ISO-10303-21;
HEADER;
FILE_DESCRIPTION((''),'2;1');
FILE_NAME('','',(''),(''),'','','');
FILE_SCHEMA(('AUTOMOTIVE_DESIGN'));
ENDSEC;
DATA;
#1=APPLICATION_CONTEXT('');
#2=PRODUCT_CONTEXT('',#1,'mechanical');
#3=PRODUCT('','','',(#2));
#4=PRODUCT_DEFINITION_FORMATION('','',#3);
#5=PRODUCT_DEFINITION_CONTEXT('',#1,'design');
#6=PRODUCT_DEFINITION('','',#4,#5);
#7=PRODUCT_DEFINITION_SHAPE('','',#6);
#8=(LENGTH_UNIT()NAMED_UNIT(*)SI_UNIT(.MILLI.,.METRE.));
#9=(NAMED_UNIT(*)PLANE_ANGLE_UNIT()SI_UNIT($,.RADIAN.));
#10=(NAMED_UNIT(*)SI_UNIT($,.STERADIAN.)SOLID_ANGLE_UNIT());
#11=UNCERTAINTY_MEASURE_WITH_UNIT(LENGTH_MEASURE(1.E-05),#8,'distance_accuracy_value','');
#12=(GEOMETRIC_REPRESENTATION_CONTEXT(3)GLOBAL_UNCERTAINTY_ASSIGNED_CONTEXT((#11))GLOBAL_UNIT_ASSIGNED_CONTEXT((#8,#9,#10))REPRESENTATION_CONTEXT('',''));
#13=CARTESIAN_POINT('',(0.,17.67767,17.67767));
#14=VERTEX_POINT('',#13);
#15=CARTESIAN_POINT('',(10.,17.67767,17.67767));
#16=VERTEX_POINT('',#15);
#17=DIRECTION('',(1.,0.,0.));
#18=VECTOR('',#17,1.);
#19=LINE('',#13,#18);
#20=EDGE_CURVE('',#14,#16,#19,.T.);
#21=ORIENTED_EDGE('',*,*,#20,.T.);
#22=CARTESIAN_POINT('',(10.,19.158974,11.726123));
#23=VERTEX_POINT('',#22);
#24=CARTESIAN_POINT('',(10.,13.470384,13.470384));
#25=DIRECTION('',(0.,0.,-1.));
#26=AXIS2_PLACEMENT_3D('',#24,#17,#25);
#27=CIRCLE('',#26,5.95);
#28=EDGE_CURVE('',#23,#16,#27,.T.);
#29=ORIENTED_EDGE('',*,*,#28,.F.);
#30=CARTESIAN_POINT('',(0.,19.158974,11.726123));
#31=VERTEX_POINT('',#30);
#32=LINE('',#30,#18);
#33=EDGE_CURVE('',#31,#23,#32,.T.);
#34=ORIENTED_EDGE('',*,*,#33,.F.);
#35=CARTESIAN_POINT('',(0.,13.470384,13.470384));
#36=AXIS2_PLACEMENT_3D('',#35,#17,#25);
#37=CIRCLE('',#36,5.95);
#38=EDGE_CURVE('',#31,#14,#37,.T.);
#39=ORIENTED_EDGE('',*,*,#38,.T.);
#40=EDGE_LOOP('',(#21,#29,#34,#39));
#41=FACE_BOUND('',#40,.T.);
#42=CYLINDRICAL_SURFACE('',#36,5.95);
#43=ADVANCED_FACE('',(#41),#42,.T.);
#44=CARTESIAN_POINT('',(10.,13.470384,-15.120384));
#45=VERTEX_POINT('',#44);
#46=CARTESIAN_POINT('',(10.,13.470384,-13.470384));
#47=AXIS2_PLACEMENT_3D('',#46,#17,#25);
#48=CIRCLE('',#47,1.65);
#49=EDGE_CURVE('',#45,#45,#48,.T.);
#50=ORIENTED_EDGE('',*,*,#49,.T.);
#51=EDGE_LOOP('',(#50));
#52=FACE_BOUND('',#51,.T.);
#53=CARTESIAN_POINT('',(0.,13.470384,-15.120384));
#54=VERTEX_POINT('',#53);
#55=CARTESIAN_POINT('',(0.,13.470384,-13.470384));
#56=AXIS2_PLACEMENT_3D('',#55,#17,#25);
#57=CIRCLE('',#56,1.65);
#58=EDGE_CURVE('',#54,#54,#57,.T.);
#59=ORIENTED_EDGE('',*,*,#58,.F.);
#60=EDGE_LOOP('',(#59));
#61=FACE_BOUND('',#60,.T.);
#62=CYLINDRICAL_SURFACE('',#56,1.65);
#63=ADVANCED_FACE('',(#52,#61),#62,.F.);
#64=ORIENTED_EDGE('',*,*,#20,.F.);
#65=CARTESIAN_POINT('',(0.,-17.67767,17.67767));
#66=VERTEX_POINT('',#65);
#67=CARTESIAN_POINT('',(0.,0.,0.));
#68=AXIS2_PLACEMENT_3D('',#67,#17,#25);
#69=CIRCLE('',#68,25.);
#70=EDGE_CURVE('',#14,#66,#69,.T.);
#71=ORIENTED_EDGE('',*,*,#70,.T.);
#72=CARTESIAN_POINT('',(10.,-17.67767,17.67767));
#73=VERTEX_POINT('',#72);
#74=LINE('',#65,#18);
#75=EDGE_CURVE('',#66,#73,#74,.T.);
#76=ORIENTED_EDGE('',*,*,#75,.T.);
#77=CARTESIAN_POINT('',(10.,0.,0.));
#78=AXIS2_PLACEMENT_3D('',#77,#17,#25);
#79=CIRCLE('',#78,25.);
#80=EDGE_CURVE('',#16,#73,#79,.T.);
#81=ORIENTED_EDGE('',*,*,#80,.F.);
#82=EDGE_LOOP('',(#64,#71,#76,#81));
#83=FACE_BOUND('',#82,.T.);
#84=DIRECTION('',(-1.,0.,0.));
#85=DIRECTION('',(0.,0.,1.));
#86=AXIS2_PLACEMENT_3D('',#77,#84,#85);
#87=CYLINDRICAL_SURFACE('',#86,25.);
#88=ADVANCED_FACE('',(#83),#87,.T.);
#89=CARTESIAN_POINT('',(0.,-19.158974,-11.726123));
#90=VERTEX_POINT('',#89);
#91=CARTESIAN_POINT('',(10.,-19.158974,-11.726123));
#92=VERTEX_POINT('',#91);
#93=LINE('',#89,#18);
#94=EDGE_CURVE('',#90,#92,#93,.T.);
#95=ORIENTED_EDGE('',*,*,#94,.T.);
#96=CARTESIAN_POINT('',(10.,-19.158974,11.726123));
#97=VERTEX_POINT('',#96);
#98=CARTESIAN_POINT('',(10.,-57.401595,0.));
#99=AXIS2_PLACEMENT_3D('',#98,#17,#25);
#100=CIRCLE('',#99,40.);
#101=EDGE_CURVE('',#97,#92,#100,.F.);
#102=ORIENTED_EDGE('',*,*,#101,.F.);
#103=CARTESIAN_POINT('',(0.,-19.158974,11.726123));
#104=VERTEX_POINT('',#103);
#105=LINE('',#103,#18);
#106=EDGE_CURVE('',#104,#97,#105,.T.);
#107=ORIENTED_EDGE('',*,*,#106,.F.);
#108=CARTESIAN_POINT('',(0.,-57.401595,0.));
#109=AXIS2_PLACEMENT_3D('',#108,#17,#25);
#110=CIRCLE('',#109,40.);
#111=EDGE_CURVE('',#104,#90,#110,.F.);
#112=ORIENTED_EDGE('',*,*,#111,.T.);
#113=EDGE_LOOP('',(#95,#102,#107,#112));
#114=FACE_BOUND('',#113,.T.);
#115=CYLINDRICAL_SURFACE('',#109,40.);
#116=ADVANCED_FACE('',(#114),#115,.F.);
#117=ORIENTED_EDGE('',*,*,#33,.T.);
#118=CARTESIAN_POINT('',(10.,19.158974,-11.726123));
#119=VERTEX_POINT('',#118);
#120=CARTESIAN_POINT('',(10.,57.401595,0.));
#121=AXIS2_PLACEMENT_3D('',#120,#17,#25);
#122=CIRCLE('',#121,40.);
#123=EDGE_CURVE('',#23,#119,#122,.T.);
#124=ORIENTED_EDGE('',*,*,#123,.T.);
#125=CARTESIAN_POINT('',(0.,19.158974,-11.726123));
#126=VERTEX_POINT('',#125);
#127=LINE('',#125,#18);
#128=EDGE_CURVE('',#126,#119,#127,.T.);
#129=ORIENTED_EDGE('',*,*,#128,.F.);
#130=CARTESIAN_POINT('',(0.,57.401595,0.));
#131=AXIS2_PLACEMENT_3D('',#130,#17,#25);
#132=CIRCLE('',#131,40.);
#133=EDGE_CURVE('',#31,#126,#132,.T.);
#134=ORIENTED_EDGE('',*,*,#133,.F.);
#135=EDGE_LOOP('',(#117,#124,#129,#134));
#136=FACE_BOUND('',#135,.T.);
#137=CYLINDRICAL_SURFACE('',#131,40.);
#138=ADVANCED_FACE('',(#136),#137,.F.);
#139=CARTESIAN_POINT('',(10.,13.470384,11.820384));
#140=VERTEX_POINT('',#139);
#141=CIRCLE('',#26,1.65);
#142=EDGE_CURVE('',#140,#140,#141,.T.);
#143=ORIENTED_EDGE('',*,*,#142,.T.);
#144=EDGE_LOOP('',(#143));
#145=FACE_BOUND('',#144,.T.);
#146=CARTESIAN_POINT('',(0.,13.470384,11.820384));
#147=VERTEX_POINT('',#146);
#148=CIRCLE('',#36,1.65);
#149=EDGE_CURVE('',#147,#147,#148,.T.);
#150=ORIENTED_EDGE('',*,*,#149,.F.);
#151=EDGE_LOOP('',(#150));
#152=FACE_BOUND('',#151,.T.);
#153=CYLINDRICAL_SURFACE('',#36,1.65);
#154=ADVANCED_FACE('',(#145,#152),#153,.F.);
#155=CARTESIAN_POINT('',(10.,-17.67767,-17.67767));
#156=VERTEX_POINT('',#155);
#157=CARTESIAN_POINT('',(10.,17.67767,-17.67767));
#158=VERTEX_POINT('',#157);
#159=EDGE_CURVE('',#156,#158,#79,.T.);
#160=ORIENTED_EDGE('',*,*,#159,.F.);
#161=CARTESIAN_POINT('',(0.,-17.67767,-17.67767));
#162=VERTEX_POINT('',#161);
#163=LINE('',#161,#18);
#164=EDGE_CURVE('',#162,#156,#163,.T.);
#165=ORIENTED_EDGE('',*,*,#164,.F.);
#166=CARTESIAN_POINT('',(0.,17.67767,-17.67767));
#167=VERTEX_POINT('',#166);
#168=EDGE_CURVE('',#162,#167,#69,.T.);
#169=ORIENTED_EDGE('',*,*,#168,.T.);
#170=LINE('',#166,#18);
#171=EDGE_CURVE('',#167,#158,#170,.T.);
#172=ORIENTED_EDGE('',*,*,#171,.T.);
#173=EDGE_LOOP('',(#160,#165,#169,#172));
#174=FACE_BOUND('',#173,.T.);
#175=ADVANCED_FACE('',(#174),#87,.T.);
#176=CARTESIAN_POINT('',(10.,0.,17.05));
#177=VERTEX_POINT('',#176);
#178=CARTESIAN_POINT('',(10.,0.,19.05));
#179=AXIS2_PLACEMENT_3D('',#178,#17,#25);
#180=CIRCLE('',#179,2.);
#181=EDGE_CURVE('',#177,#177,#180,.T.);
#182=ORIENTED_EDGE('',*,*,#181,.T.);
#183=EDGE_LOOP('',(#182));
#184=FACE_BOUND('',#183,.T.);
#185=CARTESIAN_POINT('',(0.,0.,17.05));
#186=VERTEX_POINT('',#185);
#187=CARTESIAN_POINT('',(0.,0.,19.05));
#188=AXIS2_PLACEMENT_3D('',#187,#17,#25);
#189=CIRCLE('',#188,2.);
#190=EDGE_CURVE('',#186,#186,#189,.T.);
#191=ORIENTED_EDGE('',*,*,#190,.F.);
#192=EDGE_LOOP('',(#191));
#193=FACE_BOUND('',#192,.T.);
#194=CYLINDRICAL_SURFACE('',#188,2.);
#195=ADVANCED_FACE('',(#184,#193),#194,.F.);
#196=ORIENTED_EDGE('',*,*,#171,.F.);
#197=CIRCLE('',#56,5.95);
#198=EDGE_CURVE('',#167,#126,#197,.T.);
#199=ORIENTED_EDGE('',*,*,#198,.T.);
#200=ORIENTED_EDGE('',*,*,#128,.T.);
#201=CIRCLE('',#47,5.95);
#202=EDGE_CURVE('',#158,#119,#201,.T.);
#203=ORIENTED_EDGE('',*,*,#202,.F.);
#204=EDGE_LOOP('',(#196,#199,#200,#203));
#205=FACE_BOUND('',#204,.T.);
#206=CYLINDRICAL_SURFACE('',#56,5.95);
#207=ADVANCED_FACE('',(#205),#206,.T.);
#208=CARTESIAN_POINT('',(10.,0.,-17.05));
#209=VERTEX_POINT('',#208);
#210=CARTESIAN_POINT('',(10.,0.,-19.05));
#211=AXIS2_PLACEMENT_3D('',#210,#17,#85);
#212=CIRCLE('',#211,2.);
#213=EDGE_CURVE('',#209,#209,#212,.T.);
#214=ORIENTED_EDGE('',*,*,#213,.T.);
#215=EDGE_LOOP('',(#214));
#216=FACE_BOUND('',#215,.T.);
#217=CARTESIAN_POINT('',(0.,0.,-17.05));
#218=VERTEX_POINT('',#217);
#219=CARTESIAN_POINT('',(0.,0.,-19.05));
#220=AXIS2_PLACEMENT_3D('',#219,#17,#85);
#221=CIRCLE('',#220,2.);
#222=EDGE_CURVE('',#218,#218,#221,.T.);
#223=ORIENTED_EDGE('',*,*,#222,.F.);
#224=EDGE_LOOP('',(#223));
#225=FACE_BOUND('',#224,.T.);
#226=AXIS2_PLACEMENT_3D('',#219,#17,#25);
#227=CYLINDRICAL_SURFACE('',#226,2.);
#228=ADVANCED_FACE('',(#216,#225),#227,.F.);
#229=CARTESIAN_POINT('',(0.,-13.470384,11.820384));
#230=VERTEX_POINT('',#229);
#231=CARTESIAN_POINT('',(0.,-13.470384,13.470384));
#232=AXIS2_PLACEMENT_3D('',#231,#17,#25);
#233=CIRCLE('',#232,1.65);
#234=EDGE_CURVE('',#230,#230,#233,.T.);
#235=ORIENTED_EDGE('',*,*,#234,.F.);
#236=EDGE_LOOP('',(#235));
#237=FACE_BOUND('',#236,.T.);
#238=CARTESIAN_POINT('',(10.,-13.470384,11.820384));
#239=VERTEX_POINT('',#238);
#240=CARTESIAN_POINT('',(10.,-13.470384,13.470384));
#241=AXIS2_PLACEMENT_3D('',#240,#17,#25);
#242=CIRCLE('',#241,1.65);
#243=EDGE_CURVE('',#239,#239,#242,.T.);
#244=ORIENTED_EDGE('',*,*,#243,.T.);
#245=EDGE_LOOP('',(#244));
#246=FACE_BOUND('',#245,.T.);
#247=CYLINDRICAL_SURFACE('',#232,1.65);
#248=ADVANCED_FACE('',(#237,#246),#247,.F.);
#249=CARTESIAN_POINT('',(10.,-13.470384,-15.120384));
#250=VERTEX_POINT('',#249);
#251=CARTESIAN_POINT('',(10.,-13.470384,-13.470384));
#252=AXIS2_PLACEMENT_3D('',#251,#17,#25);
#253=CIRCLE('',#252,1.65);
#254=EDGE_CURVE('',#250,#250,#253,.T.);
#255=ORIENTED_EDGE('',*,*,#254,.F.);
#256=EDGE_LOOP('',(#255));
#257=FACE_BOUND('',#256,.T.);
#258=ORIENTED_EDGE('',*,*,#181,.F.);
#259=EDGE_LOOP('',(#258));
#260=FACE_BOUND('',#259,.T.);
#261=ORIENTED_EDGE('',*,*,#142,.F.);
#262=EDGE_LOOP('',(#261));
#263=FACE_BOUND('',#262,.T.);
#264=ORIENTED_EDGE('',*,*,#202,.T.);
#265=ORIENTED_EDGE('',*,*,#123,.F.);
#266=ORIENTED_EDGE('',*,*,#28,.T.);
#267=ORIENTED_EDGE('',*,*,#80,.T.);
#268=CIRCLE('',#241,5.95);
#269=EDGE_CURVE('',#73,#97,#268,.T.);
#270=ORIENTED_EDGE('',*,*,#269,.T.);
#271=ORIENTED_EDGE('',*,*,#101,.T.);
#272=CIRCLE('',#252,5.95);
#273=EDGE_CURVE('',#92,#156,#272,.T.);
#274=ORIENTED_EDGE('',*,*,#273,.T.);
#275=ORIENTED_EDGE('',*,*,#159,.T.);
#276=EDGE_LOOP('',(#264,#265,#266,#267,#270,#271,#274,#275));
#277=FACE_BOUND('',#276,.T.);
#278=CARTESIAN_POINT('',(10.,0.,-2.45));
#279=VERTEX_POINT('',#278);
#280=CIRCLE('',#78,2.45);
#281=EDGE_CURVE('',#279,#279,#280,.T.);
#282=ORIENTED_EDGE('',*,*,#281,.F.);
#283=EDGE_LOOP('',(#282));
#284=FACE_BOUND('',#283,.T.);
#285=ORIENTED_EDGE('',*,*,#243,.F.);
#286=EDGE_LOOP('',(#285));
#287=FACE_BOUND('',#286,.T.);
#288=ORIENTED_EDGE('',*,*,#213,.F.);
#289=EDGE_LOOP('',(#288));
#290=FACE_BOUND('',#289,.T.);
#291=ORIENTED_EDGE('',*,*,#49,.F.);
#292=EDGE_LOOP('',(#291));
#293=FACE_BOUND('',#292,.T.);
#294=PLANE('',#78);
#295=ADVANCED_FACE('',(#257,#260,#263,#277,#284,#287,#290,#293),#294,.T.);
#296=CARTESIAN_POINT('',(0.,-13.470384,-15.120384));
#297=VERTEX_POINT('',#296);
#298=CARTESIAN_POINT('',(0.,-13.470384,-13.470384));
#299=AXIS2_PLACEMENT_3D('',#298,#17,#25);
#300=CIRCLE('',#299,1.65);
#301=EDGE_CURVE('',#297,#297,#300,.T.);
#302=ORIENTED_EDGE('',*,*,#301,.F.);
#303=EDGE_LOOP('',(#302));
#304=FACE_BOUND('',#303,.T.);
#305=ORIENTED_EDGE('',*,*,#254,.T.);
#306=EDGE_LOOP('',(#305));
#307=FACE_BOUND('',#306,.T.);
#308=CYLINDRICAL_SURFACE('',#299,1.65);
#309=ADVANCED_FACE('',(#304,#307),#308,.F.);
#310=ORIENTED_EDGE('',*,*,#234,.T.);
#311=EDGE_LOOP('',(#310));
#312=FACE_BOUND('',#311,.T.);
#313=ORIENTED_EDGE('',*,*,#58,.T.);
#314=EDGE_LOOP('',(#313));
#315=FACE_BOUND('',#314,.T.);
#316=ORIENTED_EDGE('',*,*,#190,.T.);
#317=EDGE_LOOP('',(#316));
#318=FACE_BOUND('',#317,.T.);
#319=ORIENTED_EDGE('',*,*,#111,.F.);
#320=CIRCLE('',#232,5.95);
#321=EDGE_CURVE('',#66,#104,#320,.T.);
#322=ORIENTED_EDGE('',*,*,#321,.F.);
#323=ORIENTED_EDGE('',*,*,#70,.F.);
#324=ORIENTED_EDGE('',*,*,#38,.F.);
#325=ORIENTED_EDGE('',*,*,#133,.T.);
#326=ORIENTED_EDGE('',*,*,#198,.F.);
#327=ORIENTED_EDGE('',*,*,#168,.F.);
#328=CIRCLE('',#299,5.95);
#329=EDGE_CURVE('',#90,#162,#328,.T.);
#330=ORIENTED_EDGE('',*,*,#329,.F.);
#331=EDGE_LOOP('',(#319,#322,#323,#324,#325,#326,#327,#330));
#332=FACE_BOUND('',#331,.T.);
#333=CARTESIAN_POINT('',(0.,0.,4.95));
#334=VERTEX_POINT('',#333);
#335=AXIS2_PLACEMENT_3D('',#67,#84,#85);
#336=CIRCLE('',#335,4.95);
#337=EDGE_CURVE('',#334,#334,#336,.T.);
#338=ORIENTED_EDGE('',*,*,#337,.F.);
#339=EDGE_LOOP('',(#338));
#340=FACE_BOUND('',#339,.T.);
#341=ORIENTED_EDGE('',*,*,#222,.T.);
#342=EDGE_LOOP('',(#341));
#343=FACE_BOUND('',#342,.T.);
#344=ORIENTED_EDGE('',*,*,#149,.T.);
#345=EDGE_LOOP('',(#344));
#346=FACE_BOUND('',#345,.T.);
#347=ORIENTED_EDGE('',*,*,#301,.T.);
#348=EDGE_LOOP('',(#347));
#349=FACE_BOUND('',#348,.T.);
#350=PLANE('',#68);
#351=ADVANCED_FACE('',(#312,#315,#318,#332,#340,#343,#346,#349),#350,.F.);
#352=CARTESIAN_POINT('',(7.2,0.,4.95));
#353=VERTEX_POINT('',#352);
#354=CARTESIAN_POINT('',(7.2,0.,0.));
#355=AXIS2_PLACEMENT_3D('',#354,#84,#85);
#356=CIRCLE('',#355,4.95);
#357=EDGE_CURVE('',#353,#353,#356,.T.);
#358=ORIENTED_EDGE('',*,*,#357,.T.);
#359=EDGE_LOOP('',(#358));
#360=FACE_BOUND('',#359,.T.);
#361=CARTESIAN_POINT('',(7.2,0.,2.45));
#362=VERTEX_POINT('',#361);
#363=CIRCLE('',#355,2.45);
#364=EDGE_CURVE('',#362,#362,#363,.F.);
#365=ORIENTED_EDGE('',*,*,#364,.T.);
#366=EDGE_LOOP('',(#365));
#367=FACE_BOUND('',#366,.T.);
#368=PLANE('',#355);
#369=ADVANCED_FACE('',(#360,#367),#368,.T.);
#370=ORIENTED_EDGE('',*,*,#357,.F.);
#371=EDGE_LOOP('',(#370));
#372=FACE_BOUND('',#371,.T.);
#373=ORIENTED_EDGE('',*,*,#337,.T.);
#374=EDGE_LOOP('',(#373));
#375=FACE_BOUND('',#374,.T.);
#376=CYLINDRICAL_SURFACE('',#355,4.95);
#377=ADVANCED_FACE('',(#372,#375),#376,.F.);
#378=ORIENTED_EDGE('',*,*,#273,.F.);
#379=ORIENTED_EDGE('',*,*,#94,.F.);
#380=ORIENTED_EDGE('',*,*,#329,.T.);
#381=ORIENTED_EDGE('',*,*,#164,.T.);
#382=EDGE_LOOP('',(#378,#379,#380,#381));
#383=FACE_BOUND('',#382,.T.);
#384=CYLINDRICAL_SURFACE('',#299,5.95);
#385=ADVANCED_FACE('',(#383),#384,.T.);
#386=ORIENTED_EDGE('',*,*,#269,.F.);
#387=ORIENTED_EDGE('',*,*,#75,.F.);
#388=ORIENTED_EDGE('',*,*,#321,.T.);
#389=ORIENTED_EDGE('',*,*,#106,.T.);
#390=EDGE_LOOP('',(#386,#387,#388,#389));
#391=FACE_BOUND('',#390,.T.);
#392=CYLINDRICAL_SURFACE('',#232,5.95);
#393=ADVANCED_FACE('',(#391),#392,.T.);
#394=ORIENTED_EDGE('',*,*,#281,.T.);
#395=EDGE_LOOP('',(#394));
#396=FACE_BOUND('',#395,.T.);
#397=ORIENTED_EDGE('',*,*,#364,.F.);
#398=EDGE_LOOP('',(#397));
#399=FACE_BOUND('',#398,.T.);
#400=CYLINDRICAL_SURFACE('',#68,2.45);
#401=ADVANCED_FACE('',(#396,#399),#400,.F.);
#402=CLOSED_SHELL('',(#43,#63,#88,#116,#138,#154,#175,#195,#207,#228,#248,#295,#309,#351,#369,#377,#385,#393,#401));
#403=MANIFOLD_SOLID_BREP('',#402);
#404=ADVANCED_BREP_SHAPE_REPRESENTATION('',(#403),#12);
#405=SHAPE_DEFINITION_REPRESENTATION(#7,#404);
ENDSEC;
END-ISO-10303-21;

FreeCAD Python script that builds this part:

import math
import FreeCAD as App
import Part
import Sketcher

V = App.Vector
Q = App.Units.Quantity

doc = App.newDocument("Part")
body = doc.addObject("PartDesign::Body", "Body")

sketch1 = body.newObject("Sketcher::SketchObject", "Sketch")
sketch1.AttachmentSupport = (doc.getObject("YZ_Plane"), [""])
sketch1.MapMode = "FlatFace"
sketch1.addGeometry(Part.Circle(V(0, 0, 0), V(0, 0, 1), 25), False)
sketch1.addConstraint([
    Sketcher.Constraint("Coincident", 0, 3, -1, 1),
    Sketcher.Constraint("Diameter", 0, Q("50 mm")),
])
pad1 = body.newObject("PartDesign::Pad", "Pad")
pad1.Profile = sketch1
pad1.Length = 10

sketch2 = body.newObject("Sketcher::SketchObject", "Sketch001")
sketch2.AttachmentSupport = (doc.getObject("YZ_Plane"), [""])
sketch2.MapMode = "FlatFace"
sketch2.AttachmentOffset = App.Placement(V(0, 0, 10), App.Rotation())
sketch2.addGeometry(Part.Circle(V(0, 0, 0), V(0, 0, 1), 2.45), False)
sketch2.addConstraint([
    Sketcher.Constraint("Coincident", 0, 3, -1, 1),
    Sketcher.Constraint("Diameter", 0, Q("4.9 mm")),
])
pocket1 = body.newObject("PartDesign::Pocket", "Pocket")
pocket1.Profile = sketch2
pocket1.Type = "ThroughAll"

sketch3 = body.newObject("Sketcher::SketchObject", "Sketch002")
sketch3.AttachmentSupport = (doc.getObject("YZ_Plane"), [""])
sketch3.MapMode = "FlatFace"
sketch3.addGeometry(Part.Circle(V(0, 0, 0), V(0, 0, 1), 4.95), False)
sketch3.addConstraint([
    Sketcher.Constraint("Coincident", 0, 3, -1, 1),
    Sketcher.Constraint("Diameter", 0, Q("9.9 mm")),
])
pocket2 = body.newObject("PartDesign::Pocket", "Pocket001")
pocket2.Profile = sketch3
pocket2.Length = 7.2
pocket2.Reversed = True

sketch4 = body.newObject("Sketcher::SketchObject", "Sketch003")
sketch4.AttachmentSupport = (doc.getObject("YZ_Plane"), [""])
sketch4.MapMode = "FlatFace"
sketch4.AttachmentOffset = App.Placement(V(0, 0, 10), App.Rotation())
sketch4.addGeometry([
    Part.Circle(V(0, 19.05, 0), V(0, 0, 1), 2),
    Part.Circle(V(0, -19.05, 0), V(0, 0, 1), 2),
], False)
sketch4.addConstraint([
    Sketcher.Constraint("Equal", 0, 1),
    Sketcher.Constraint("Symmetric", 0, 3, 1, 3, -1, 1),
    Sketcher.Constraint("PointOnObject", 0, 3, -2),
    Sketcher.Constraint("Diameter", 0, Q("4 mm")),
    Sketcher.Constraint("DistanceY", 1, 3, 0, 3, Q("38.1 mm")),
])
pocket3 = body.newObject("PartDesign::Pocket", "Pocket002")
pocket3.Profile = sketch4
pocket3.Type = "ThroughAll"

sketch5 = body.newObject("Sketcher::SketchObject", "Sketch004")
sketch5.AttachmentSupport = (doc.getObject("YZ_Plane"), [""])
sketch5.MapMode = "FlatFace"
sketch5.AttachmentOffset = App.Placement(V(0, 0, 10), App.Rotation())
sketch5.addGeometry([
    Part.Circle(V(13.470384, -13.470384, 0), V(0, 0, 1), 1.65),
    Part.Circle(V(-13.470384, -13.470384, 0), V(0, 0, 1), 1.65),
    Part.Circle(V(-13.470384, 13.470384, 0), V(0, 0, 1), 1.65),
    Part.Circle(V(13.470384, 13.470384, 0), V(0, 0, 1), 1.65),
], False)
sketch5.addConstraint([
    Sketcher.Constraint("Equal", 0, 1),
    Sketcher.Constraint("Equal", 1, 2),
    Sketcher.Constraint("Equal", 2, 3),
    Sketcher.Constraint("Symmetric", 0, 3, 2, 3, -1, 1),
    Sketcher.Constraint("Symmetric", 1, 3, 3, 3, -1, 1),
    Sketcher.Constraint("Symmetric", 0, 3, 1, 3, -2),
    Sketcher.Constraint("Diameter", 0, Q("3.3 mm")),
    Sketcher.Constraint("DistanceX", 1, 3, 0, 3, Q("26.940768 mm")),
    Sketcher.Constraint("DistanceY", 1, 3, 2, 3, Q("26.940768 mm")),
])
pocket4 = body.newObject("PartDesign::Pocket", "Pocket003")
pocket4.Profile = sketch5
pocket4.Type = "ThroughAll"

sketch6 = body.newObject("Sketcher::SketchObject", "Sketch005")
sketch6.AttachmentSupport = (doc.getObject("YZ_Plane"), [""])
sketch6.MapMode = "FlatFace"
sketch6.AttachmentOffset = App.Placement(V(0, 0, 10), App.Rotation())
sketch6.addGeometry([
    Part.ArcOfCircle(Part.Circle(V(13.470384, 13.470384, 0), V(0, 0, 1), 5.95), math.radians(-17.046814), math.radians(45)),
    Part.ArcOfCircle(Part.Circle(V(57.401595, 0, 0), V(0, 0, 1), 40), math.radians(162.953178), math.radians(197.046822)),
    Part.ArcOfCircle(Part.Circle(V(13.470384, -13.470384, 0), V(0, 0, 1), 5.95), math.radians(-45), math.radians(17.046815)),
    Part.ArcOfCircle(Part.Circle(V(0, 0, 0), V(0, 0, 1), 25), math.radians(-45), math.radians(45)),
    Part.ArcOfCircle(Part.Circle(V(-13.470384, 13.470384, 0), V(0, 0, 1), 5.95), math.radians(135), math.radians(197.046814)),
    Part.ArcOfCircle(Part.Circle(V(0, 0, 0), V(0, 0, 1), 25), math.radians(135), math.radians(225)),
    Part.ArcOfCircle(Part.Circle(V(-13.470384, -13.470384, 0), V(0, 0, 1), 5.95), math.radians(162.953185), math.radians(224.999999)),
    Part.ArcOfCircle(Part.Circle(V(-57.401595, 0, 0), V(0, 0, 1), 40), math.radians(-17.046822), math.radians(17.046822)),
], False)
sketch6.addConstraint([
    Sketcher.Constraint("Tangent", 0, 1, 1, 1),
    Sketcher.Constraint("Tangent", 1, 2, 2, 2),
    Sketcher.Constraint("Tangent", 2, 1, 3, 1),
    Sketcher.Constraint("Tangent", 3, 2, 0, 2),
    Sketcher.Constraint("Tangent", 4, 1, 5, 1),
    Sketcher.Constraint("Tangent", 5, 2, 6, 2),
    Sketcher.Constraint("Tangent", 6, 1, 7, 1),
    Sketcher.Constraint("Tangent", 7, 2, 4, 2),
    Sketcher.Constraint("Coincident", 3, 3, -1, 1),
    Sketcher.Constraint("Coincident", 5, 3, -1, 1),
    Sketcher.Constraint("Equal", 0, 2),
    Sketcher.Constraint("Equal", 2, 4),
    Sketcher.Constraint("Equal", 3, 5),
    Sketcher.Constraint("Equal", 4, 6),
    Sketcher.Constraint("Equal", 1, 7),
    Sketcher.Constraint("Symmetric", 1, 3, 7, 3, -1, 1),
    Sketcher.Constraint("PointOnObject", 1, 3, -1),
    Sketcher.Constraint("Radius", 1, Q("40 mm")),
    Sketcher.Constraint("Radius", 3, Q("25 mm")),
    Sketcher.Constraint("Radius", 0, Q("5.95 mm")),
    Sketcher.Constraint("DistanceX", -1, 1, 2, 1, Q("17.67767 mm")),
])
pocket5 = body.newObject("PartDesign::Pocket", "Pocket004")
pocket5.Profile = sketch6
pocket5.Type = "ThroughAll"

doc.recompute()
